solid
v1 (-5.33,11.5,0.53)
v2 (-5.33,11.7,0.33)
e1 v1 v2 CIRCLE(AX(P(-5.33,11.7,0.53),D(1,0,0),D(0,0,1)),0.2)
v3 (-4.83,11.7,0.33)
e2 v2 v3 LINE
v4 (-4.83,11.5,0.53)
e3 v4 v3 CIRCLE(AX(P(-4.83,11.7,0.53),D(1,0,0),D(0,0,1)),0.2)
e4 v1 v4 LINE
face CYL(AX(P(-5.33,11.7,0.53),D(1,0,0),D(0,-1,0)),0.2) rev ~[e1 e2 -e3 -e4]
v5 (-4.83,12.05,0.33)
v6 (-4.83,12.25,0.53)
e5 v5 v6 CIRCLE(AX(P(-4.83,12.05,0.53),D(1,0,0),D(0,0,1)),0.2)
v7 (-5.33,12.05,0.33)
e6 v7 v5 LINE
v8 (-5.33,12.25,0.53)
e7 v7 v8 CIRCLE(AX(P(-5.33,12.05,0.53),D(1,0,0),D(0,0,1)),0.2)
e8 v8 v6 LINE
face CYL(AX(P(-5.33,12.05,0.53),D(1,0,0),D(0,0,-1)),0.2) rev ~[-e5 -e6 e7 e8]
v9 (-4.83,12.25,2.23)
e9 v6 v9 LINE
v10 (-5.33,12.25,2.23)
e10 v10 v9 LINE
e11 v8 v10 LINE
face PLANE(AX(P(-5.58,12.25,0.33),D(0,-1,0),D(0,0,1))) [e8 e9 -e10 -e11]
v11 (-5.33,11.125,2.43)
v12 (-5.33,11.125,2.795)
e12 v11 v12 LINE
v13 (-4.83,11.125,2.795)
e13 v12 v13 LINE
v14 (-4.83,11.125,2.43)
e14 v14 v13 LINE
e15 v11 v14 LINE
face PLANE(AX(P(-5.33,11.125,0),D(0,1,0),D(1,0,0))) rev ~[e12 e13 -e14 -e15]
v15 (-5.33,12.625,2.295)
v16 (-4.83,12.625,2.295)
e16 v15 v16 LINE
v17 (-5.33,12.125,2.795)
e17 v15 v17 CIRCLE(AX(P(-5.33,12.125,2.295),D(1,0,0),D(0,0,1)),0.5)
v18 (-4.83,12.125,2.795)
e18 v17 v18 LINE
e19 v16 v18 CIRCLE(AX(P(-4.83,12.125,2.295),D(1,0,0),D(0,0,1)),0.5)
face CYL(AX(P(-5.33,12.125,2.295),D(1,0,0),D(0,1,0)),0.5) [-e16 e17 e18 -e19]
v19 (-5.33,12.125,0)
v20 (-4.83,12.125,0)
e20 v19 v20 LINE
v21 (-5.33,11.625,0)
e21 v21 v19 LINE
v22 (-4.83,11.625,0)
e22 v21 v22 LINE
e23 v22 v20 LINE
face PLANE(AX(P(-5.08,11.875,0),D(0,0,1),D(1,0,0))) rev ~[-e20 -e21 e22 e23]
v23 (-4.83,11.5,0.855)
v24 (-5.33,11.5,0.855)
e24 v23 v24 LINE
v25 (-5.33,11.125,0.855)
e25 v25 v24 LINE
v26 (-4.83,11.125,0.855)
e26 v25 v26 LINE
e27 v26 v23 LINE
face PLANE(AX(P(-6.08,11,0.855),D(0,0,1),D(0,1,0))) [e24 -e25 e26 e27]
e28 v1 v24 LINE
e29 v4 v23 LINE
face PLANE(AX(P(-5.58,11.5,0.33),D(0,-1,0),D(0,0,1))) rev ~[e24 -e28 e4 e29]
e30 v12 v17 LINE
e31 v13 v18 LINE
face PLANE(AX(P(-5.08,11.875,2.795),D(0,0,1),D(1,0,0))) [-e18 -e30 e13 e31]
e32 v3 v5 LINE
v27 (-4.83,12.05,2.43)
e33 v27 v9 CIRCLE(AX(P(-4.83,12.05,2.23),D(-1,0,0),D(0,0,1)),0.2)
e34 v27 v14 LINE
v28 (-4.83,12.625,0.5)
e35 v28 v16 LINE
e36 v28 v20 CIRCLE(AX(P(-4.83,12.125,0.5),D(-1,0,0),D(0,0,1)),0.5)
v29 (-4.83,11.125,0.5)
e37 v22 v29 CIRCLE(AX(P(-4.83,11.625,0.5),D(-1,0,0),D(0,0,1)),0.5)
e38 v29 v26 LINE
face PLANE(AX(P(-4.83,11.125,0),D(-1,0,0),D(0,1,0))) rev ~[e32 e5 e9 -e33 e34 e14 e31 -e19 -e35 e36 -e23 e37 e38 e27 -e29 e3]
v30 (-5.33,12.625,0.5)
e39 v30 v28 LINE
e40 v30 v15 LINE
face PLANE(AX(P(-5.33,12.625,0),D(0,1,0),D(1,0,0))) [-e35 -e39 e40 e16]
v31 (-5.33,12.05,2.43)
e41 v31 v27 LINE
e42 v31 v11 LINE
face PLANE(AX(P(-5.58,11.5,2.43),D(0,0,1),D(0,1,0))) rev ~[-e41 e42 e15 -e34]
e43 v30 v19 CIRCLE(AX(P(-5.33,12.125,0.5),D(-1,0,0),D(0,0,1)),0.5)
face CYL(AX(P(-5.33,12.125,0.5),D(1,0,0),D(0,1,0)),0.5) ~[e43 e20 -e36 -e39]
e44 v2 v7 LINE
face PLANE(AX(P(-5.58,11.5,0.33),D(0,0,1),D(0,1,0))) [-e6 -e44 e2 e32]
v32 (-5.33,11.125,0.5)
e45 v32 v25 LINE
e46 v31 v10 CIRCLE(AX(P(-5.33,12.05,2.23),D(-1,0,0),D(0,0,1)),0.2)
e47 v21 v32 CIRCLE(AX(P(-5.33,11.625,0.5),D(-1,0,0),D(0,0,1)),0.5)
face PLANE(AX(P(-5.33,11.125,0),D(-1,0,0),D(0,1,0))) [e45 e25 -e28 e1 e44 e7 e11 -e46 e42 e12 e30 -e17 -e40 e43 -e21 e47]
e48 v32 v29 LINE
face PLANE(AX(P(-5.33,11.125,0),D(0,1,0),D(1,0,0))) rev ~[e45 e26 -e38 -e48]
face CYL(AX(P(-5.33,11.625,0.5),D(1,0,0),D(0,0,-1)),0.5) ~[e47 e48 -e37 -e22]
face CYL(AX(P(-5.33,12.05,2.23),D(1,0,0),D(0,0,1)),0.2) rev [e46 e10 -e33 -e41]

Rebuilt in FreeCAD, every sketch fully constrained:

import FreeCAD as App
import Part
import Sketcher

V = App.Vector
Q = App.Units.Quantity


def edges_at(feature, points):
    """Names of the edges that pass closest to the given points."""
    edges = feature.Shape.Edges
    near = lambda p: min(range(len(edges)), key=lambda i: edges[i].distToShape(Part.Vertex(*p))[0])
    return sorted({f"Edge{near(p) + 1}" for p in points})

doc = App.newDocument("Part")
body = doc.addObject("PartDesign::Body", "Body")

# Sketch on XY plane
sketch1 = body.newObject("Sketcher::SketchObject", "Sketch")
sketch1.AttachmentSupport = (doc.getObject("XY_Plane"), [""])
sketch1.MapMode = "FlatFace"
sketch1.addGeometry([
    Part.LineSegment(V(-0.2, 12.6, 0), V(-0.2, 11.1, 0)),
    Part.LineSegment(V(-0.2, 11.1, 0), V(0.2, 11.1, 0)),
    Part.LineSegment(V(0.2, 11.1, 0), V(0.2, 12.6, 0)),
    Part.LineSegment(V(0.2, 12.6, 0), V(-0.2, 12.6, 0)),
], False)
sketch1.addConstraint([
    Sketcher.Constraint("Coincident", 0, 2, 1, 1),
    Sketcher.Constraint("Coincident", 1, 2, 2, 1),
    Sketcher.Constraint("Coincident", 2, 2, 3, 1),
    Sketcher.Constraint("Coincident", 3, 2, 0, 1),
    Sketcher.Constraint("Vertical", 0),
    Sketcher.Constraint("Horizontal", 1),
    Sketcher.Constraint("Vertical", 2),
    Sketcher.Constraint("Horizontal", 3),
    Sketcher.Constraint("DistanceX", 1, 1, 1, 2, Q("0.5 mm")),
    Sketcher.Constraint("DistanceY", 0, 2, 0, 1, Q("1.5 mm")),
    Sketcher.Constraint("DistanceX", 0, 2, -1, 1, Q("0.25 mm")),
    Sketcher.Constraint("DistanceY", -1, 1, 0, 2, Q("11.125 mm")),
])
pad1 = body.newObject("PartDesign::Pad", "Pad")
pad1.Profile = sketch1
pad1.Length = 2.795
doc.recompute()

fillet = body.newObject("PartDesign::Fillet", "Fillet")
fillet.Base = (pad1, edges_at(pad1, [(0, 12.625, 0)]))
fillet.Radius = 0.5
doc.recompute()

fillet2 = body.newObject("PartDesign::Fillet", "Fillet001")
fillet2.Base = (fillet, edges_at(fillet, [(0, 12.625, 2.795)]))
fillet2.Radius = 0.5
doc.recompute()

fillet3 = body.newObject("PartDesign::Fillet", "Fillet002")
fillet3.Base = (fillet2, edges_at(fillet2, [(0, 11.125, 0)]))
fillet3.Radius = 0.5

# Sketch on YZ plane
sketch2 = body.newObject("Sketcher::SketchObject", "Sketch001")
sketch2.AttachmentSupport = (doc.getObject("YZ_Plane"), [""])
sketch2.MapMode = "FlatFace"
sketch2.AttachmentOffset = App.Placement(V(0, 0, -0.5), App.Rotation())
sketch2.addGeometry([
    Part.LineSegment(V(11.5, 2.4, 0), V(11.5, 0.3, 0)),
    Part.LineSegment(V(11.5, 0.3, 0), V(12.2, 0.3, 0)),
    Part.LineSegment(V(12.2, 0.3, 0), V(12.2, 2.4, 0)),
    Part.LineSegment(V(12.2, 2.4, 0), V(11.5, 2.4, 0)),
], False)
sketch2.addConstraint([
    Sketcher.Constraint("Coincident", 0, 2, 1, 1),
    Sketcher.Constraint("Coincident", 1, 2, 2, 1),
    Sketcher.Constraint("Coincident", 2, 2, 3, 1),
    Sketcher.Constraint("Coincident", 3, 2, 0, 1),
    Sketcher.Constraint("Vertical", 0),
    Sketcher.Constraint("Horizontal", 1),
    Sketcher.Constraint("Vertical", 2),
    Sketcher.Constraint("Horizontal", 3),
    Sketcher.Constraint("DistanceY", 0, 2, 0, 1, Q("2.1 mm")),
    Sketcher.Constraint("DistanceX", 1, 1, 1, 2, Q("0.75 mm")),
    Sketcher.Constraint("DistanceX", -1, 1, 0, 2, Q("11.5 mm")),
    Sketcher.Constraint("DistanceY", -1, 1, 0, 2, Q("0.33 mm")),
])
pocket1 = body.newObject("PartDesign::Pocket", "Pocket")
pocket1.Profile = sketch2
pocket1.Length = 1
pocket1.Reversed = True
doc.recompute()

fillet4 = body.newObject("PartDesign::Fillet", "Fillet003")
fillet4.Base = (pocket1, edges_at(pocket1, [(0, 11.5, 0.33)]))
fillet4.Radius = 0.2
doc.recompute()

fillet5 = body.newObject("PartDesign::Fillet", "Fillet004")
fillet5.Base = (fillet4, edges_at(fillet4, [(0, 12.25, 0.33)]))
fillet5.Radius = 0.2
doc.recompute()

fillet6 = body.newObject("PartDesign::Fillet", "Fillet005")
fillet6.Base = (fillet5, edges_at(fillet5, [(0, 11.5, 2.43)]))
fillet6.Radius = 0.2
doc.recompute()

fillet7 = body.newObject("PartDesign::Fillet", "Fillet006")
fillet7.Base = (fillet6, edges_at(fillet6, [(0, 12.25, 2.43)]))
fillet7.Radius = 0.2

# Sketch on YZ plane
sketch3 = body.newObject("Sketcher::SketchObject", "Sketch002")
sketch3.AttachmentSupport = (doc.getObject("YZ_Plane"), [""])
sketch3.MapMode = "FlatFace"
sketch3.AttachmentOffset = App.Placement(V(0, 0, -1), App.Rotation())
sketch3.addGeometry([
    Part.LineSegment(V(11, 2.4, 0), V(11, 0.9, 0)),
    Part.LineSegment(V(11, 0.9, 0), V(12, 0.9, 0)),
    Part.LineSegment(V(12, 0.9, 0), V(12, 2.4, 0)),
    Part.LineSegment(V(12, 2.4, 0), V(11, 2.4, 0)),
], False)
sketch3.addConstraint([
    Sketcher.Constraint("Coincident", 0, 2, 1, 1),
    Sketcher.Constraint("Coincident", 1, 2, 2, 1),
    Sketcher.Constraint("Coincident", 2, 2, 3, 1),
    Sketcher.Constraint("Coincident", 3, 2, 0, 1),
    Sketcher.Constraint("Vertical", 0),
    Sketcher.Constraint("Horizontal", 1),
    Sketcher.Constraint("Vertical", 2),
    Sketcher.Constraint("Horizontal", 3),
    Sketcher.Constraint("DistanceX", 1, 1, 1, 2, Q("1 mm")),
    Sketcher.Constraint("DistanceX", -1, 1, 0, 2, Q("11 mm")),
    Sketcher.Constraint("DistanceY", 0, 2, 0, 1, Q("1.575 mm")),
    Sketcher.Constraint("DistanceY", -1, 1, 2, 2, Q("2.43 mm")),
])
pocket2 = body.newObject("PartDesign::Pocket", "Pocket001")
pocket2.Profile = sketch3
pocket2.Length = 3
pocket2.Reversed = True
body2 = doc.addObject("PartDesign::Body", "Body001")
doc.recompute()

body.Placement = App.Placement(V(-5.08, 0, 0), App.Rotation(V(0, 0, 1), 0))
boolean = body2.newObject("PartDesign::Boolean", "Boolean")
boolean.Type = "Fuse"
boolean.addObjects([body])

doc.recompute()
